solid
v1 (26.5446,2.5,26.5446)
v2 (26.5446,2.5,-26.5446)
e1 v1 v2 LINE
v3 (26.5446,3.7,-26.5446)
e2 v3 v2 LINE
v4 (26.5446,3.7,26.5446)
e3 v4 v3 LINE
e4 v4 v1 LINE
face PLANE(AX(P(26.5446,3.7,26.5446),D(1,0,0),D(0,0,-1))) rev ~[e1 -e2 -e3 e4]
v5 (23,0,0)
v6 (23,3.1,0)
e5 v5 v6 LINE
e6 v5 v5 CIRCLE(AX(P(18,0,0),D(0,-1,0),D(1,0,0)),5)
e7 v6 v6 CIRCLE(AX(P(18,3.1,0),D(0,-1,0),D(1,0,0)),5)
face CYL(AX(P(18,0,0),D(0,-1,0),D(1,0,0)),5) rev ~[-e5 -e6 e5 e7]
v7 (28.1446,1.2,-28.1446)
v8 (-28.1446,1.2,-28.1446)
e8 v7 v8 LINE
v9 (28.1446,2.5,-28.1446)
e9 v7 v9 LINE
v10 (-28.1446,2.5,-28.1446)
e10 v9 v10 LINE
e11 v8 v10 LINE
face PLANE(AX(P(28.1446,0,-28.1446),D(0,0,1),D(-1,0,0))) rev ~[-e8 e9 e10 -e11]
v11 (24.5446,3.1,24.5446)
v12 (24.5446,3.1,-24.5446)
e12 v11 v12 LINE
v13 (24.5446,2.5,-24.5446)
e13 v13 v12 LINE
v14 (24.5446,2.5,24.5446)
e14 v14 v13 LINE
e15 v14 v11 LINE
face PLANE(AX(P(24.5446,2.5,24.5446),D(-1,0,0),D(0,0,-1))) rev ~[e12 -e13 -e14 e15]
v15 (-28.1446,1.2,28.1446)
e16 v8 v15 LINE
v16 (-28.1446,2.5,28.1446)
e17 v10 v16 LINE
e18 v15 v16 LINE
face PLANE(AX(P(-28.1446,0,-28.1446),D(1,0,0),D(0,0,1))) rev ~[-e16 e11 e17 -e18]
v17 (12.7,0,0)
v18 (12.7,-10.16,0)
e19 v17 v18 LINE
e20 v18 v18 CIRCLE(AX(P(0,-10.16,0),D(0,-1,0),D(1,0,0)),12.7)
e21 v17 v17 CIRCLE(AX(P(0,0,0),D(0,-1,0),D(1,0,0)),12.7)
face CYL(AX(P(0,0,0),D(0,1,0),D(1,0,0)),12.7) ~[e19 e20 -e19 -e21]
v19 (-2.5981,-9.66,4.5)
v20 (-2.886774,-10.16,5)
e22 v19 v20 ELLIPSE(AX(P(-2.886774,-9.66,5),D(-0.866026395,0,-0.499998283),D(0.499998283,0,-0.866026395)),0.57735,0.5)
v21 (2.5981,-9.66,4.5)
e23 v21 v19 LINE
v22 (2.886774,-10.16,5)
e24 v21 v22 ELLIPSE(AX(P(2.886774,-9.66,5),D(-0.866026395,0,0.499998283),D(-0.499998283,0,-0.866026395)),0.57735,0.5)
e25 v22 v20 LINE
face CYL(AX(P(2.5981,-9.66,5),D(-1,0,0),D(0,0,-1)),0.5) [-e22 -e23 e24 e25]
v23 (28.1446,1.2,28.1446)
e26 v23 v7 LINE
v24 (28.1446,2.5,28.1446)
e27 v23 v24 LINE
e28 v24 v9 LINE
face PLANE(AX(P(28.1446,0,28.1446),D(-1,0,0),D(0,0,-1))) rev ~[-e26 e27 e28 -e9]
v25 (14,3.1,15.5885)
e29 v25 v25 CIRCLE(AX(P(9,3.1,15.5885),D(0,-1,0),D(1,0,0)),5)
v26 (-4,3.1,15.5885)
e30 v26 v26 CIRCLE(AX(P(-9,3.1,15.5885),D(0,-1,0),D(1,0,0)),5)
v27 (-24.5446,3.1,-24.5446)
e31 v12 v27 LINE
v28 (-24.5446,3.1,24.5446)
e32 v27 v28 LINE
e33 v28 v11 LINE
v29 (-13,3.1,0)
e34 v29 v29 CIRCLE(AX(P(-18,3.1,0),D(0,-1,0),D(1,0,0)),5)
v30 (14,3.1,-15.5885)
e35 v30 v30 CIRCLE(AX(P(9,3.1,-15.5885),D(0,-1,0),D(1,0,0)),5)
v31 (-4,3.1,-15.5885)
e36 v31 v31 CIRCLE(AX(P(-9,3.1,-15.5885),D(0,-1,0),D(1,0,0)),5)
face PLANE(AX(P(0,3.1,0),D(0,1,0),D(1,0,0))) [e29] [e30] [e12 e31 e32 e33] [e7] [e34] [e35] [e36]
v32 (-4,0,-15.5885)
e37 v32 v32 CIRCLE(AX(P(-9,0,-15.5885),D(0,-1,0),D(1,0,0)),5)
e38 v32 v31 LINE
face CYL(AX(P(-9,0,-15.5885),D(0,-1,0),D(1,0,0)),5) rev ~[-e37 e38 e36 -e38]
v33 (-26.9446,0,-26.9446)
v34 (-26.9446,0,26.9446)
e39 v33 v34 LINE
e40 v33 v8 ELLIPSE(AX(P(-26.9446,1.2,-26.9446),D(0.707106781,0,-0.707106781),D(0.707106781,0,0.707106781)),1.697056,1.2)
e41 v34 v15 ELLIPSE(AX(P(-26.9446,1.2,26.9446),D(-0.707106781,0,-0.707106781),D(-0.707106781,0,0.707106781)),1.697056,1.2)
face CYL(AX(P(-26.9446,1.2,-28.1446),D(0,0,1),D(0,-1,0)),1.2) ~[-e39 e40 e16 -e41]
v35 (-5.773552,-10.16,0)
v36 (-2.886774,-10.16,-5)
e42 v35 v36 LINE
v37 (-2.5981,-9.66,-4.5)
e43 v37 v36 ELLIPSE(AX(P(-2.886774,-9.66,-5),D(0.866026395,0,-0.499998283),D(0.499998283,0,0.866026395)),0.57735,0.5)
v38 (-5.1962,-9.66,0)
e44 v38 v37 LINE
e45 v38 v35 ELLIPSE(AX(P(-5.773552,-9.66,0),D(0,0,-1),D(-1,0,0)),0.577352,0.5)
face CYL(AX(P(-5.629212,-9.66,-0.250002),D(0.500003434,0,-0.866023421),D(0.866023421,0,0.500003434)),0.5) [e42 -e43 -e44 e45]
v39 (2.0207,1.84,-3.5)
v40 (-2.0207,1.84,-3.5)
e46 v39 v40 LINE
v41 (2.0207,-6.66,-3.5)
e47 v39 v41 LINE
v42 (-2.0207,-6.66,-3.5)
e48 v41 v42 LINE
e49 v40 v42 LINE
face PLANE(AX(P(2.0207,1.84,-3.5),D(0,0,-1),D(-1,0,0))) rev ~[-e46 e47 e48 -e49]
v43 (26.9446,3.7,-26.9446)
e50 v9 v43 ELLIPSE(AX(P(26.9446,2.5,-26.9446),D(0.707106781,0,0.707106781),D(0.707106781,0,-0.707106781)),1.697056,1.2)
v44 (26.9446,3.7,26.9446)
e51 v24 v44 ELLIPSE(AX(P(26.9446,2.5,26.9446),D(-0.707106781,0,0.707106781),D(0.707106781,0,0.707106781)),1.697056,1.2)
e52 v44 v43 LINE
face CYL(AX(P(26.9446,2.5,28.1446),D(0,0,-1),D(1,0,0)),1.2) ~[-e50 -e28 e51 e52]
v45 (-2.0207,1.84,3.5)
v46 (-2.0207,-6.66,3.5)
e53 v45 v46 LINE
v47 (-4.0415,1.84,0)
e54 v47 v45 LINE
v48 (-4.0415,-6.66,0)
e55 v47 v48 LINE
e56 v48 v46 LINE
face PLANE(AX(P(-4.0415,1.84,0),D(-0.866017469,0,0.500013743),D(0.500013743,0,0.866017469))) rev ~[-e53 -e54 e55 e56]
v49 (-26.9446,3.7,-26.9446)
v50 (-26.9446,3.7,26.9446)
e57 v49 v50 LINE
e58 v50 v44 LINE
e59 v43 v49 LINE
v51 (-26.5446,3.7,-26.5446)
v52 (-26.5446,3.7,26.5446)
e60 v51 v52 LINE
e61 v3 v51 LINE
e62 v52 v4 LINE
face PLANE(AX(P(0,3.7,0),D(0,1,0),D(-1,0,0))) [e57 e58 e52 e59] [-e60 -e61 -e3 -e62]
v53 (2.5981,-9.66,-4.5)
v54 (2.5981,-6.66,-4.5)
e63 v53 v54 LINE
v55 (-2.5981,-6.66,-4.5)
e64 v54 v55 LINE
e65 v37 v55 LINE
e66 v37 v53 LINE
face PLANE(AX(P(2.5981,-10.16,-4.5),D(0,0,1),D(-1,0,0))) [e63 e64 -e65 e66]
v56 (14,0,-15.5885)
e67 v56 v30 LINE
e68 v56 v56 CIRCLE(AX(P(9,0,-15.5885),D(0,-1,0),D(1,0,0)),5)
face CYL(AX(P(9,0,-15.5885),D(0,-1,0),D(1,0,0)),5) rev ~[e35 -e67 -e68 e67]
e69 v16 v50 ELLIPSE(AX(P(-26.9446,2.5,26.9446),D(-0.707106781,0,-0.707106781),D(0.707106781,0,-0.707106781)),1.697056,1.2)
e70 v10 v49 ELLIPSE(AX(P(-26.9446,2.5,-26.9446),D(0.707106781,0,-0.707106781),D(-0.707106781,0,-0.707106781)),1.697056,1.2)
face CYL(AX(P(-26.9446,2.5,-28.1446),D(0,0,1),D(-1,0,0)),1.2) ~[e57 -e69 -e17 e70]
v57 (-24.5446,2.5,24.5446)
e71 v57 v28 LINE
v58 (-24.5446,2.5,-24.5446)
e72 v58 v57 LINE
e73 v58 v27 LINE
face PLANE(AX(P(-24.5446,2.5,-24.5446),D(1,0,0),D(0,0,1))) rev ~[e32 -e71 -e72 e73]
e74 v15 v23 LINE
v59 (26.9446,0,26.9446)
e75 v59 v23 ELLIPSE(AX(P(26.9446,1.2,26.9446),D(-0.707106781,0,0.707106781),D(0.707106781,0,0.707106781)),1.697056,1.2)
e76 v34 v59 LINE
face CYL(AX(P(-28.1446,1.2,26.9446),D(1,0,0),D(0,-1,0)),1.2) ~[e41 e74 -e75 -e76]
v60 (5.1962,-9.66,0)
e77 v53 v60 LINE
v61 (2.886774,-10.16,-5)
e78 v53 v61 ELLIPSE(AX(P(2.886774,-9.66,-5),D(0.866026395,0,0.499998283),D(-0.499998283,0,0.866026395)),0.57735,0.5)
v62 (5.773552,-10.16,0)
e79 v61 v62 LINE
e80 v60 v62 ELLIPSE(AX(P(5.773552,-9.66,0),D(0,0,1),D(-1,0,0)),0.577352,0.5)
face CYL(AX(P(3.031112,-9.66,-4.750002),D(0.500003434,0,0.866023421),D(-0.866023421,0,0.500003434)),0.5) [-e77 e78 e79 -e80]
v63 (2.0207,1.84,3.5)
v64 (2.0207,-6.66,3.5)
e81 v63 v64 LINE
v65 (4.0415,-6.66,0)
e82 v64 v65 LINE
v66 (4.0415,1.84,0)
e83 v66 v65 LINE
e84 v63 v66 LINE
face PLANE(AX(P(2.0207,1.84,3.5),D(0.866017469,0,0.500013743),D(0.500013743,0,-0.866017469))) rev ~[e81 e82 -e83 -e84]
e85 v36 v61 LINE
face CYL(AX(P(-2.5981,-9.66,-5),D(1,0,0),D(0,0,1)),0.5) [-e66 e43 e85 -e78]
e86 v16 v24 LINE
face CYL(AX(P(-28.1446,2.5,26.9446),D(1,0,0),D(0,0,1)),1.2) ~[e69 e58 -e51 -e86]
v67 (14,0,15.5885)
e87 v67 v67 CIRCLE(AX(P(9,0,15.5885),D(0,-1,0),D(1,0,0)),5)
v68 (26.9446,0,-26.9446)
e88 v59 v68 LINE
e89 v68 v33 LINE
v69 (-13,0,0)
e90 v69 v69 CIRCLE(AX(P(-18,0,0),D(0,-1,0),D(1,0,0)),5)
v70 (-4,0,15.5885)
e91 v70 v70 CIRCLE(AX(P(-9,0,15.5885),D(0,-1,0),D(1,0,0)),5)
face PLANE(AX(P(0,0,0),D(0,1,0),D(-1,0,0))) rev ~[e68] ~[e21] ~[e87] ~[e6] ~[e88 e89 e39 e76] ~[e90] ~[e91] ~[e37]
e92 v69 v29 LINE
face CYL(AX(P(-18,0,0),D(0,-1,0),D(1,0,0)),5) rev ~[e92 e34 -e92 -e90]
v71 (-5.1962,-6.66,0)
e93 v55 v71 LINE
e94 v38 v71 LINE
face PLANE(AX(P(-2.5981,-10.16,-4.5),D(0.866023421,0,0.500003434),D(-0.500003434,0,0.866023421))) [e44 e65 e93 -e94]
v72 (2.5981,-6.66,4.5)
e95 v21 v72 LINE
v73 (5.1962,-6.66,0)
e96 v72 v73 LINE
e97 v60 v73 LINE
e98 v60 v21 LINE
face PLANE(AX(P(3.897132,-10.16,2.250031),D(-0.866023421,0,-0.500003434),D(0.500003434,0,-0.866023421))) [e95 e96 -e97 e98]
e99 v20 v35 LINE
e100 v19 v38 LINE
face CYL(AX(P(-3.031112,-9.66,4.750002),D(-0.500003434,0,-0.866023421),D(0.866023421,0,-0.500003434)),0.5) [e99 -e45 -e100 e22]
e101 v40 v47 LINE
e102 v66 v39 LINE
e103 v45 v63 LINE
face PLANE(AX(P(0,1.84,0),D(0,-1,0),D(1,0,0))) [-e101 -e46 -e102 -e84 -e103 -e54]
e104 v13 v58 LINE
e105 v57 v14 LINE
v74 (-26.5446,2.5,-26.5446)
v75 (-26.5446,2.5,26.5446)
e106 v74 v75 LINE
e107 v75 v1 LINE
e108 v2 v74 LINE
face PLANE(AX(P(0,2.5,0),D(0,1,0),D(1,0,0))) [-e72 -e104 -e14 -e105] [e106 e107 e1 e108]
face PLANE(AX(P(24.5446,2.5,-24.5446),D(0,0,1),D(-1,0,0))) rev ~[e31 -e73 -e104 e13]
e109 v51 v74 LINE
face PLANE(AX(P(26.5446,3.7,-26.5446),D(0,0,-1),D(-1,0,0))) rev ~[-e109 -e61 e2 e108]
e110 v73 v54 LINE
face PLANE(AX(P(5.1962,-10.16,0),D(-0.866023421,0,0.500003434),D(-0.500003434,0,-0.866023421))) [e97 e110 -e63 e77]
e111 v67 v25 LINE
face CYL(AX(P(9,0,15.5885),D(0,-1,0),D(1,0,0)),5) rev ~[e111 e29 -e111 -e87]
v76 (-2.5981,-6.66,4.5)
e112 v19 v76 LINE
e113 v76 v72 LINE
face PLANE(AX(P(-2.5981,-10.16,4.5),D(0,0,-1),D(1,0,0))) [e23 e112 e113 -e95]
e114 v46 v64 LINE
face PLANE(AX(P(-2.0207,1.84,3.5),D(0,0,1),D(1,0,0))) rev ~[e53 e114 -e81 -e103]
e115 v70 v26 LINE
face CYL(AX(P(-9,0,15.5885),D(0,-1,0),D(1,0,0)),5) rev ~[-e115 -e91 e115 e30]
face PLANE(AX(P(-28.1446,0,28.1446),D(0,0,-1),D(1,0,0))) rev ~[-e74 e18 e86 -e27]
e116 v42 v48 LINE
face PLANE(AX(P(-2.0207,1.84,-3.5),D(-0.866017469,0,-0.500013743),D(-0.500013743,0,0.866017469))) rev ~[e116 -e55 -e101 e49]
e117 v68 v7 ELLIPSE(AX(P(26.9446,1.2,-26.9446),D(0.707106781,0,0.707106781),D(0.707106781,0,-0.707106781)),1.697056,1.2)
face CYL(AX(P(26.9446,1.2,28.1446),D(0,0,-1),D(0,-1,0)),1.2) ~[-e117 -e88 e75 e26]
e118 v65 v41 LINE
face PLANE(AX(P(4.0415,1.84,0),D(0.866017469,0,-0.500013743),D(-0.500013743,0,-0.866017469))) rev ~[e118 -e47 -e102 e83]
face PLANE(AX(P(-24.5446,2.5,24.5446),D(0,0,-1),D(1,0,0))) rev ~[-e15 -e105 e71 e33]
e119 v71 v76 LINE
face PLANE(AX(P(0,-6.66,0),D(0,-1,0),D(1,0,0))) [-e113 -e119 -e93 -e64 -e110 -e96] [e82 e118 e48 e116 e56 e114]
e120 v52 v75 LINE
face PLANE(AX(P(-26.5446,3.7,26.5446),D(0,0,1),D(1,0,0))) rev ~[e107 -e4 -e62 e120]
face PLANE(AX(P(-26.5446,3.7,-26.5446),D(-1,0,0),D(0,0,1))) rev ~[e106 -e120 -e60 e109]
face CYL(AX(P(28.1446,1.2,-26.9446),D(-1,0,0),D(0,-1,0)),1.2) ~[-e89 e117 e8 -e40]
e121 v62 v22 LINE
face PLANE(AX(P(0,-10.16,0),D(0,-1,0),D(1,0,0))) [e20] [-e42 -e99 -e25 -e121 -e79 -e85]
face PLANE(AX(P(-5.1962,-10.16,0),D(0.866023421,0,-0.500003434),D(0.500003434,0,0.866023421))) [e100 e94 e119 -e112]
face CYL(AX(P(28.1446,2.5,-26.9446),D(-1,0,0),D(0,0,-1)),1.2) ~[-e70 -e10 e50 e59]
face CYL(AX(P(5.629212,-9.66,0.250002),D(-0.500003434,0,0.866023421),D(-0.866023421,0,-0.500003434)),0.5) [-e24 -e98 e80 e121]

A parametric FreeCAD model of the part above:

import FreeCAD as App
import Part
import Sketcher
from FreeCAD import Vector
Q = App.Units.Quantity


def edges_at(feature, points):
    """Names of the edges that pass closest to the given points."""
    edges = feature.Shape.Edges
    near = lambda p: min(range(len(edges)), key=lambda i: edges[i].distToShape(Part.Vertex(*p))[0])
    return sorted({f"Edge{near(p) + 1}" for p in points})


def add_polygon(sketch, points):
    """Adds a closed chain of lines whose ends are joined by coincident constraints."""
    first, n = sketch.GeometryCount, len(points)
    for a, b in zip(points, points[1:] + points[:1]):
        sketch.addGeometry(Part.LineSegment(App.Vector(*a, 0), App.Vector(*b, 0)), False)
    for i in range(n):
        sketch.addConstraint(Sketcher.Constraint("Coincident", first + i, 2, first + (i + 1) % n, 1))

doc = App.newDocument("Part")
params = doc.addObject("Spreadsheet::Sheet", "Params")
for row, (alias, value) in enumerate([
    ("pad1_length", "3.7 mm"),
    ("pocket1_length", "1.2 mm"),
    ("pad2_length", "0.6 mm"),
    ("fillet_radius", "1.2 mm"),
    ("sketch4_diameter", "25.4 mm"),
    ("pad3_length", "10.16 mm"),
    ("pocket2_length", "12 mm"),
    ("sketch6_diameter", "10 mm"),
    ("pocket3_length", "3.1 mm"),
    ("pad4_length", "8.5 mm"),
    ("fillet2_radius", "0.5 mm"),
], start=1):
    params.set(f"A{row}", alias)
    params.set(f"B{row}", "=" + value)
    params.setAlias(f"B{row}", alias)

body = doc.addObject("PartDesign::Body", "Body")

# Sketch on XZ plane
sketch1 = doc.addObject("Sketcher::SketchObject", "Sketch")
body.addObject(sketch1)
sketch1.AttachmentSupport = (doc.XZ_Plane, [""])
sketch1.MapMode = "FlatFace"
add_polygon(sketch1, [(28.1446, 28.1446), (28.1446, -28.1446), (-28.1446, -28.1446), (-28.1446, 28.1446)])  # lines 0-3
sketch1.addConstraint([
    Sketcher.Constraint("Vertical", 0),
    Sketcher.Constraint("Horizontal", 1),
    Sketcher.Constraint("Vertical", 2),
    Sketcher.Constraint("Horizontal", 3),
    Sketcher.Constraint("Symmetric", 0, 2, 2, 2, -1, 1),
    Sketcher.Constraint("Equal", 3, 0),
    Sketcher.Constraint("DistanceX", 1, 2, 1, 1, Q("56.2892 mm")),
])
pad1 = doc.addObject("PartDesign::Pad", "Pad")
body.addObject(pad1)
pad1.Profile = sketch1
pad1.setExpression("Length", "Params.pad1_length")
pad1.Reversed = True

# Sketch on XZ plane
sketch2 = doc.addObject("Sketcher::SketchObject", "Sketch001")
body.addObject(sketch2)
sketch2.AttachmentSupport = (doc.XZ_Plane, [""])
sketch2.MapMode = "FlatFace"
sketch2.AttachmentOffset = App.Placement(Vector(0, 0, -3.7), App.Rotation())
add_polygon(sketch2, [(26.5446, 26.5446), (26.5446, -26.5446), (-26.5446, -26.5446), (-26.5446, 26.5446)])  # lines 0-3
sketch2.addConstraint([
    Sketcher.Constraint("Vertical", 0),
    Sketcher.Constraint("Horizontal", 1),
    Sketcher.Constraint("Vertical", 2),
    Sketcher.Constraint("Horizontal", 3),
    Sketcher.Constraint("Symmetric", 0, 2, 2, 2, -1, 1),
    Sketcher.Constraint("Equal", 3, 0),
    Sketcher.Constraint("DistanceX", 1, 2, 1, 1, Q("53.0892 mm")),
])
pocket1 = doc.addObject("PartDesign::Pocket", "Pocket")
body.addObject(pocket1)
pocket1.Profile = sketch2
pocket1.setExpression("Length", "Params.pocket1_length")
pocket1.Reversed = True

# Sketch on XZ plane
sketch3 = doc.addObject("Sketcher::SketchObject", "Sketch002")
body.addObject(sketch3)
sketch3.AttachmentSupport = (doc.XZ_Plane, [""])
sketch3.MapMode = "FlatFace"
sketch3.AttachmentOffset = App.Placement(Vector(0, 0, -2.5), App.Rotation())
add_polygon(sketch3, [(24.5446, 24.5446), (24.5446, -24.5446), (-24.5446, -24.5446), (-24.5446, 24.5446)])  # lines 0-3
sketch3.addConstraint([
    Sketcher.Constraint("Vertical", 0),
    Sketcher.Constraint("Horizontal", 1),
    Sketcher.Constraint("Vertical", 2),
    Sketcher.Constraint("Horizontal", 3),
    Sketcher.Constraint("Symmetric", 0, 2, 2, 2, -1, 1),
    Sketcher.Constraint("Equal", 3, 0),
    Sketcher.Constraint("DistanceX", 1, 2, 1, 1, Q("49.0892 mm")),
])
pad2 = doc.addObject("PartDesign::Pad", "Pad001")
body.addObject(pad2)
pad2.Profile = sketch3
pad2.setExpression("Length", "Params.pad2_length")
pad2.Reversed = True
doc.recompute()

fillet = doc.addObject("PartDesign::Fillet", "Fillet")
body.addObject(fillet)
fillet.Base = (pad2, edges_at(pad2, [
    (0, 3.7, 28.145),
    (28.145, 3.7, 0),
    (0, 3.7, -28.145),
    (-28.145, 3.7, 0),
    (-28.145, 0, 0),
    (0, 0, 28.145),
    (28.145, 0, 0),
    (0, 0, -28.145),
]))
fillet.setExpression("Radius", "Params.fillet_radius")

# Sketch on XZ plane
sketch4 = doc.addObject("Sketcher::SketchObject", "Sketch003")
body.addObject(sketch4)
sketch4.AttachmentSupport = (doc.XZ_Plane, [""])
sketch4.MapMode = "FlatFace"
sketch4.addGeometry(Part.Circle(Vector(0, 0, 0), Vector(0, 0, 1), 12.7), False)
sketch4.addConstraint([
    Sketcher.Constraint("Coincident", 0, 3, -1, 1),
    Sketcher.Constraint("Diameter", 0, Q("25.4 mm")),
])
sketch4.setExpression("Constraints[1]", "Params.sketch4_diameter")
pad3 = doc.addObject("PartDesign::Pad", "Pad002")
body.addObject(pad3)
pad3.Profile = sketch4
pad3.setExpression("Length", "Params.pad3_length")

# Sketch on XZ plane
sketch5 = doc.addObject("Sketcher::SketchObject", "Sketch004")
body.addObject(sketch5)
sketch5.AttachmentSupport = (doc.XZ_Plane, [""])
sketch5.MapMode = "FlatFace"
sketch5.AttachmentOffset = App.Placement(Vector(0, 0, 10.16), App.Rotation())
add_polygon(sketch5, [(5.1962, 0), (2.5981, 4.5), (-2.5981, 4.5), (-5.1962, 0), (-2.5981, -4.5), (2.5981, -4.5)])  # lines 0-5
sketch5.addConstraint([
    Sketcher.Constraint("Horizontal", 1),
    Sketcher.Constraint("Horizontal", 4),
    Sketcher.Constraint("Symmetric", 0, 2, 3, 2, -1, 1),
    Sketcher.Constraint("Symmetric", 2, 2, 5, 2, -1, 1),
    Sketcher.Constraint("PointOnObject", 2, 2, -1),
    Sketcher.Constraint("Parallel", 2, 5),
    Sketcher.Constraint("Vertical", 1, 2, 3, 2),
    Sketcher.Constraint("DistanceY", 3, 2, 1, 2, Q("9 mm")),
    Sketcher.Constraint("Angle", 0, Q("120.0002 deg")),
    Sketcher.Constraint("DistanceX", 1, 2, 1, 1, Q("5.1962 mm")),
])
pocket2 = doc.addObject("PartDesign::Pocket", "Pocket001")
body.addObject(pocket2)
pocket2.Profile = sketch5
pocket2.setExpression("Length", "Params.pocket2_length")

# Sketch on XZ plane
sketch6 = doc.addObject("Sketcher::SketchObject", "Sketch005")
body.addObject(sketch6)
sketch6.AttachmentSupport = (doc.XZ_Plane, [""])
sketch6.MapMode = "FlatFace"
sketch6.addGeometry([
    Part.Circle(Vector(-18, 0, 0), Vector(0, 0, 1), 5),  # 0
    Part.Circle(Vector(-9, -15.5885, 0), Vector(0, 0, 1), 5),  # 1
    Part.Circle(Vector(9, -15.5885, 0), Vector(0, 0, 1), 5),  # 2
    Part.Circle(Vector(18, 0, 0), Vector(0, 0, 1), 5),  # 3
    Part.Circle(Vector(9, 15.5885, 0), Vector(0, 0, 1), 5),  # 4
    Part.Circle(Vector(-9, 15.5885, 0), Vector(0, 0, 1), 5),  # 5
], False)
sketch6.addConstraint([
    Sketcher.Constraint("Equal", 0, 1),
    Sketcher.Constraint("Equal", 1, 2),
    Sketcher.Constraint("Equal", 2, 3),
    Sketcher.Constraint("Equal", 3, 4),
    Sketcher.Constraint("Equal", 4, 5),
    Sketcher.Constraint("Symmetric", 0, 3, 3, 3, -1, 1),
    Sketcher.Constraint("Symmetric", 1, 3, 4, 3, -1, 1),
    Sketcher.Constraint("Symmetric", 2, 3, 5, 3, -1, 1),
    Sketcher.Constraint("Symmetric", 1, 3, 2, 3, -2),
    Sketcher.Constraint("PointOnObject", 0, 3, -1),
    Sketcher.Constraint("Diameter", 0, Q("10 mm")),
    Sketcher.Constraint("DistanceX", 0, 3, -1, 1, Q("18 mm")),
    Sketcher.Constraint("DistanceX", 1, 3, 2, 3, Q("18 mm")),
    Sketcher.Constraint("DistanceY", 2, 3, 4, 3, Q("31.177 mm")),
])
sketch6.setExpression("Constraints[10]", "Params.sketch6_diameter")
pocket3 = doc.addObject("PartDesign::Pocket", "Pocket002")
body.addObject(pocket3)
pocket3.Profile = sketch6
pocket3.setExpression("Length", "Params.pocket3_length")

# Sketch on XZ plane
sketch7 = doc.addObject("Sketcher::SketchObject", "Sketch006")
body.addObject(sketch7)
sketch7.AttachmentSupport = (doc.XZ_Plane, [""])
sketch7.MapMode = "FlatFace"
sketch7.AttachmentOffset = App.Placement(Vector(0, 0, -1.84), App.Rotation())
add_polygon(sketch7, [(-2.5981, 4.5), (-5.1962, 0), (-2.5981, -4.5), (2.5981, -4.5), (5.1962, 0), (2.5981, 4.5)])  # lines 0-5
add_polygon(sketch7, [(-4.0415, 0), (-2.0207, 3.5), (2.0207, 3.5), (4.0415, 0), (2.0207, -3.5), (-2.0207, -3.5)])  # lines 6-11
sketch7.addConstraint([
    Sketcher.Constraint("Horizontal", 2),
    Sketcher.Constraint("Horizontal", 5),
    Sketcher.Constraint("Horizontal", 7),
    Sketcher.Constraint("Horizontal", 10),
    Sketcher.Constraint("Symmetric", 0, 2, 3, 2, -1, 1),
    Sketcher.Constraint("Symmetric", 1, 2, 4, 2, -1, 1),
    Sketcher.Constraint("Symmetric", 6, 2, 9, 2, -1, 1),
    Sketcher.Constraint("Symmetric", 8, 2, 11, 2, -1, 1),
    Sketcher.Constraint("PointOnObject", 0, 2, -1),
    Sketcher.Constraint("PointOnObject", 8, 2, -1),
    Sketcher.Constraint("Parallel", 0, 3),
    Sketcher.Constraint("Parallel", 3, 6),
    Sketcher.Constraint("Parallel", 4, 8),
    Sketcher.Constraint("Parallel", 8, 11),
    Sketcher.Constraint("Vertical", 2, 2, 4, 2),
    Sketcher.Constraint("DistanceY", 6, 2, 5, 2, Q("1 mm")),
    Sketcher.Constraint("Angle", 0, Q("-120.0002 deg")),
    Sketcher.Constraint("DistanceY", 2, 2, 4, 2, Q("9 mm")),
    Sketcher.Constraint("DistanceX", 2, 1, 2, 2, Q("5.1962 mm")),
    Sketcher.Constraint("DistanceX", 7, 1, 7, 2, Q("4.0414 mm")),
])
pad4 = doc.addObject("PartDesign::Pad", "Pad003")
body.addObject(pad4)
pad4.Profile = sketch7
pad4.setExpression("Length", "Params.pad4_length")
doc.recompute()

fillet2 = doc.addObject("PartDesign::Fillet", "Fillet001")
body.addObject(fillet2)
fillet2.Base = (pad4, edges_at(pad4, [
    (-3.897, -10.16, 2.25),
    (0, -10.16, 4.5),
    (3.897, -10.16, 2.25),
    (3.897, -10.16, -2.25),
    (0, -10.16, -4.5),
    (-3.897, -10.16, -2.25),
]))
fillet2.setExpression("Radius", "Params.fillet2_radius")

doc.recompute()
